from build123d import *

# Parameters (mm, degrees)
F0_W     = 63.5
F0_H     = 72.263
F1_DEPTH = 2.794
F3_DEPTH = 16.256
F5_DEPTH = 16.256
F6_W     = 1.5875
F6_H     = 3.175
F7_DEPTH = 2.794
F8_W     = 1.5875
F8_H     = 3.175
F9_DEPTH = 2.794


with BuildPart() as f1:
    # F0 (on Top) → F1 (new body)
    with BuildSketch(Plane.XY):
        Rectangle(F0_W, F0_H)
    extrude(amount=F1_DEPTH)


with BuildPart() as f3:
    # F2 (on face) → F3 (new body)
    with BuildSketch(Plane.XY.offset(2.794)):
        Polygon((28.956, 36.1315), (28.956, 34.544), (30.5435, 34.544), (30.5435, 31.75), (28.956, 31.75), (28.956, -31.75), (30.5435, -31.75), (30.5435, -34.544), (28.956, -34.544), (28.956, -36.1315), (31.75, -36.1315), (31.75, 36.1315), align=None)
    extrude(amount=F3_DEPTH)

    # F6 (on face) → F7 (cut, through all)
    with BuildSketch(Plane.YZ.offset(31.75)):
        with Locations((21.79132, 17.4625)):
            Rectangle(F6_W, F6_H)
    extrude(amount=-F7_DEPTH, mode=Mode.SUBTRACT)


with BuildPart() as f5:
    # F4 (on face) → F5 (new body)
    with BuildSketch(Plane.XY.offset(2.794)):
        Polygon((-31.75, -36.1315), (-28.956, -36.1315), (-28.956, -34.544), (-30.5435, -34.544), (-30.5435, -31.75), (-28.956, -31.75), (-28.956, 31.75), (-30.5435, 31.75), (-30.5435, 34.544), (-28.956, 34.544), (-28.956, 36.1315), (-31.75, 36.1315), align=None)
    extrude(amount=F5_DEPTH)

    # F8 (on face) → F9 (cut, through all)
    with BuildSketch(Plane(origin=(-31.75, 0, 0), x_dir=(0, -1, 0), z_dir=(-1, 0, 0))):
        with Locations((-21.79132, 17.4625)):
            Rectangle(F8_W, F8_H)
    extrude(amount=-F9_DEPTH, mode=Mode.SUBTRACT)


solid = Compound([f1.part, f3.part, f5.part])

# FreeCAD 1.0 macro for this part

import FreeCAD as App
import Part
import Sketcher
Q = App.Units.Quantity

doc = App.newDocument("Part")
body = doc.addObject("PartDesign::Body", "Body")

# Sketch on XY plane
sketch1 = body.newObject("Sketcher::SketchObject", "Sketch")
sketch1.AttachmentSupport = (doc.getObject("XY_Plane"), [""])
sketch1.MapMode = "FlatFace"
sketch1.addGeometry(Part.LineSegment(App.Vector(-31.75, 36.1315, 0), App.Vector(-31.75, -36.1315, 0)), False)
sketch1.addGeometry(Part.LineSegment(App.Vector(-31.75, -36.1315, 0), App.Vector(31.75, -36.1315, 0)), False)
sketch1.addGeometry(Part.LineSegment(App.Vector(31.75, -36.1315, 0), App.Vector(31.75, 36.1315, 0)), False)
sketch1.addGeometry(Part.LineSegment(App.Vector(31.75, 36.1315, 0), App.Vector(-31.75, 36.1315, 0)), False)
sketch1.addConstraint(Sketcher.Constraint("Coincident", 0, 2, 1, 1))
sketch1.addConstraint(Sketcher.Constraint("Coincident", 1, 2, 2, 1))
sketch1.addConstraint(Sketcher.Constraint("Coincident", 2, 2, 3, 1))
sketch1.addConstraint(Sketcher.Constraint("Coincident", 3, 2, 0, 1))
sketch1.addConstraint(Sketcher.Constraint("Vertical", 0))
sketch1.addConstraint(Sketcher.Constraint("Horizontal", 1))
sketch1.addConstraint(Sketcher.Constraint("Vertical", 2))
sketch1.addConstraint(Sketcher.Constraint("Horizontal", 3))
sketch1.addConstraint(Sketcher.Constraint("Symmetric", 0, 2, 2, 2, -1, 1))
sketch1.addConstraint(Sketcher.Constraint("DistanceX", 1, 1, 1, 2, Q("2.5 in")))
sketch1.addConstraint(Sketcher.Constraint("DistanceY", 0, 2, 0, 1, Q("2.845 in")))
pad1 = body.newObject("PartDesign::Pad", "Pad")
pad1.Profile = sketch1
pad1.Length = Q("0.11 in")
body2 = doc.addObject("PartDesign::Body", "Body001")

# Sketch on XY plane
sketch2 = body2.newObject("Sketcher::SketchObject", "Sketch001")
sketch2.AttachmentSupport = (doc.getObject("XY_Plane001"), [""])
sketch2.MapMode = "FlatFace"
sketch2.AttachmentOffset = App.Placement(App.Vector(0, 0, 0.11 * 25.4), App.Rotation())
sketch2.addGeometry(Part.LineSegment(App.Vector(28.956, 36.1315, 0), App.Vector(28.956, 34.544, 0)), False)
sketch2.addGeometry(Part.LineSegment(App.Vector(28.956, 34.544, 0), App.Vector(30.5435, 34.544, 0)), False)
sketch2.addGeometry(Part.LineSegment(App.Vector(30.5435, 34.544, 0), App.Vector(30.5435, 31.75, 0)), False)
sketch2.addGeometry(Part.LineSegment(App.Vector(30.5435, 31.75, 0), App.Vector(28.956, 31.75, 0)), False)
sketch2.addGeometry(Part.LineSegment(App.Vector(28.956, 31.75, 0), App.Vector(28.956, -31.75, 0)), False)
sketch2.addGeometry(Part.LineSegment(App.Vector(28.956, -31.75, 0), App.Vector(30.5435, -31.75, 0)), False)
sketch2.addGeometry(Part.LineSegment(App.Vector(30.5435, -31.75, 0), App.Vector(30.5435, -34.544, 0)), False)
sketch2.addGeometry(Part.LineSegment(App.Vector(30.5435, -34.544, 0), App.Vector(28.956, -34.544, 0)), False)
sketch2.addGeometry(Part.LineSegment(App.Vector(28.956, -34.544, 0), App.Vector(28.956, -36.1315, 0)), False)
sketch2.addGeometry(Part.LineSegment(App.Vector(28.956, -36.1315, 0), App.Vector(31.75, -36.1315, 0)), False)
sketch2.addGeometry(Part.LineSegment(App.Vector(31.75, -36.1315, 0), App.Vector(31.75, 36.1315, 0)), False)
sketch2.addGeometry(Part.LineSegment(App.Vector(31.75, 36.1315, 0), App.Vector(28.956, 36.1315, 0)), False)
sketch2.addConstraint(Sketcher.Constraint("Coincident", 0, 2, 1, 1))
sketch2.addConstraint(Sketcher.Constraint("Coincident", 1, 2, 2, 1))
sketch2.addConstraint(Sketcher.Constraint("Coincident", 2, 2, 3, 1))
sketch2.addConstraint(Sketcher.Constraint("Coincident", 3, 2, 4, 1))
sketch2.addConstraint(Sketcher.Constraint("Coincident", 4, 2, 5, 1))
sketch2.addConstraint(Sketcher.Constraint("Coincident", 5, 2, 6, 1))
sketch2.addConstraint(Sketcher.Constraint("Coincident", 6, 2, 7, 1))
sketch2.addConstraint(Sketcher.Constraint("Coincident", 7, 2, 8, 1))
sketch2.addConstraint(Sketcher.Constraint("Coincident", 8, 2, 9, 1))
sketch2.addConstraint(Sketcher.Constraint("Coincident", 9, 2, 10, 1))
sketch2.addConstraint(Sketcher.Constraint("Coincident", 10, 2, 11, 1))
sketch2.addConstraint(Sketcher.Constraint("Coincident", 11, 2, 0, 1))
sketch2.addConstraint(Sketcher.Constraint("Vertical", 0))
sketch2.addConstraint(Sketcher.Constraint("Horizontal", 1))
sketch2.addConstraint(Sketcher.Constraint("Vertical", 2))
sketch2.addConstraint(Sketcher.Constraint("Horizontal", 3))
sketch2.addConstraint(Sketcher.Constraint("Vertical", 4))
sketch2.addConstraint(Sketcher.Constraint("Horizontal", 5))
sketch2.addConstraint(Sketcher.Constraint("Vertical", 6))
sketch2.addConstraint(Sketcher.Constraint("Horizontal", 7))
sketch2.addConstraint(Sketcher.Constraint("Vertical", 8))
sketch2.addConstraint(Sketcher.Constraint("Horizontal", 9))
sketch2.addConstraint(Sketcher.Constraint("Vertical", 10))
sketch2.addConstraint(Sketcher.Constraint("Horizontal", 11))
sketch2.addConstraint(Sketcher.Constraint("Symmetric", 2, 2, 5, 2, -1))
sketch2.addConstraint(Sketcher.Constraint("Symmetric", 0, 2, 7, 2, -1))
sketch2.addConstraint(Sketcher.Constraint("Vertical", 0, 2, 3, 2))
sketch2.addConstraint(Sketcher.Constraint("Equal", 7, 0))
sketch2.addConstraint(Sketcher.Constraint("Equal", 11, 2))
sketch2.addConstraint(Sketcher.Constraint("Equal", 0, 8))
sketch2.addConstraint(Sketcher.Constraint("DistanceY", 4, 2, 4, 1, Q("2.5 in")))
sketch2.addConstraint(Sketcher.Constraint("DistanceX", 9, 1, 9, 2, Q("0.11 in")))
sketch2.addConstraint(Sketcher.Constraint("DistanceX", 1, 1, 1, 2, Q("0.0625 in")))
sketch2.addConstraint(Sketcher.Constraint("DistanceX", -1, 1, 0, 2, Q("1.14 in")))
pad2 = body2.newObject("PartDesign::Pad", "Pad001")
pad2.Profile = sketch2
pad2.Length = Q("0.64 in")

# Sketch on YZ plane
sketch3 = body2.newObject("Sketcher::SketchObject", "Sketch002")
sketch3.AttachmentSupport = (doc.getObject("YZ_Plane001"), [""])
sketch3.MapMode = "FlatFace"
sketch3.AttachmentOffset = App.Placement(App.Vector(0, 0, 1.25 * 25.4), App.Rotation())
sketch3.addGeometry(Part.LineSegment(App.Vector(20.99757, 19.05, 0), App.Vector(20.99757, 15.875, 0)), False)
sketch3.addGeometry(Part.LineSegment(App.Vector(20.99757, 15.875, 0), App.Vector(22.58507, 15.875, 0)), False)
sketch3.addGeometry(Part.LineSegment(App.Vector(22.58507, 15.875, 0), App.Vector(22.58507, 19.05, 0)), False)
sketch3.addGeometry(Part.LineSegment(App.Vector(22.58507, 19.05, 0), App.Vector(20.99757, 19.05, 0)), False)
sketch3.addConstraint(Sketcher.Constraint("Coincident", 0, 2, 1, 1))
sketch3.addConstraint(Sketcher.Constraint("Coincident", 1, 2, 2, 1))
sketch3.addConstraint(Sketcher.Constraint("Coincident", 2, 2, 3, 1))
sketch3.addConstraint(Sketcher.Constraint("Coincident", 3, 2, 0, 1))
sketch3.addConstraint(Sketcher.Constraint("Vertical", 0))
sketch3.addConstraint(Sketcher.Constraint("Horizontal", 1))
sketch3.addConstraint(Sketcher.Constraint("Vertical", 2))
sketch3.addConstraint(Sketcher.Constraint("Horizontal", 3))
sketch3.addConstraint(Sketcher.Constraint("DistanceX", 1, 1, 1, 2, Q("0.0625 in")))
sketch3.addConstraint(Sketcher.Constraint("DistanceY", 0, 2, 0, 1, Q("0.125 in")))
sketch3.addConstraint(Sketcher.Constraint("DistanceY", -1, 1, 2, 2, Q("0.75 in")))
sketch3.addConstraint(Sketcher.Constraint("DistanceX", -1, 1, 0, 2, 20.99757))
pocket1 = body2.newObject("PartDesign::Pocket", "Pocket")
pocket1.Profile = sketch3
pocket1.Type = "ThroughAll"
body3 = doc.addObject("PartDesign::Body", "Body002")

# Sketch on XY plane
sketch4 = body3.newObject("Sketcher::SketchObject", "Sketch003")
sketch4.AttachmentSupport = (doc.getObject("XY_Plane002"), [""])
sketch4.MapMode = "FlatFace"
sketch4.AttachmentOffset = App.Placement(App.Vector(0, 0, 0.11 * 25.4), App.Rotation())
sketch4.addGeometry(Part.LineSegment(App.Vector(-31.75, -36.1315, 0), App.Vector(-28.956, -36.1315, 0)), False)
sketch4.addGeometry(Part.LineSegment(App.Vector(-28.956, -36.1315, 0), App.Vector(-28.956, -34.544, 0)), False)
sketch4.addGeometry(Part.LineSegment(App.Vector(-28.956, -34.544, 0), App.Vector(-30.5435, -34.544, 0)), False)
sketch4.addGeometry(Part.LineSegment(App.Vector(-30.5435, -34.544, 0), App.Vector(-30.5435, -31.75, 0)), False)
sketch4.addGeometry(Part.LineSegment(App.Vector(-30.5435, -31.75, 0), App.Vector(-28.956, -31.75, 0)), False)
sketch4.addGeometry(Part.LineSegment(App.Vector(-28.956, -31.75, 0), App.Vector(-28.956, 31.75, 0)), False)
sketch4.addGeometry(Part.LineSegment(App.Vector(-28.956, 31.75, 0), App.Vector(-30.5435, 31.75, 0)), False)
sketch4.addGeometry(Part.LineSegment(App.Vector(-30.5435, 31.75, 0), App.Vector(-30.5435, 34.544, 0)), False)
sketch4.addGeometry(Part.LineSegment(App.Vector(-30.5435, 34.544, 0), App.Vector(-28.956, 34.544, 0)), False)
sketch4.addGeometry(Part.LineSegment(App.Vector(-28.956, 34.544, 0), App.Vector(-28.956, 36.1315, 0)), False)
sketch4.addGeometry(Part.LineSegment(App.Vector(-28.956, 36.1315, 0), App.Vector(-31.75, 36.1315, 0)), False)
sketch4.addGeometry(Part.LineSegment(App.Vector(-31.75, 36.1315, 0), App.Vector(-31.75, -36.1315, 0)), False)
sketch4.addConstraint(Sketcher.Constraint("Coincident", 0, 2, 1, 1))
sketch4.addConstraint(Sketcher.Constraint("Coincident", 1, 2, 2, 1))
sketch4.addConstraint(Sketcher.Constraint("Coincident", 2, 2, 3, 1))
sketch4.addConstraint(Sketcher.Constraint("Coincident", 3, 2, 4, 1))
sketch4.addConstraint(Sketcher.Constraint("Coincident", 4, 2, 5, 1))
sketch4.addConstraint(Sketcher.Constraint("Coincident", 5, 2, 6, 1))
sketch4.addConstraint(Sketcher.Constraint("Coincident", 6, 2, 7, 1))
sketch4.addConstraint(Sketcher.Constraint("Coincident", 7, 2, 8, 1))
sketch4.addConstraint(Sketcher.Constraint("Coincident", 8, 2, 9, 1))
sketch4.addConstraint(Sketcher.Constraint("Coincident", 9, 2, 10, 1))
sketch4.addConstraint(Sketcher.Constraint("Coincident", 10, 2, 11, 1))
sketch4.addConstraint(Sketcher.Constraint("Coincident", 11, 2, 0, 1))
sketch4.addConstraint(Sketcher.Constraint("Horizontal", 0))
sketch4.addConstraint(Sketcher.Constraint("Vertical", 1))
sketch4.addConstraint(Sketcher.Constraint("Horizontal", 2))
sketch4.addConstraint(Sketcher.Constraint("Vertical", 3))
sketch4.addConstraint(Sketcher.Constraint("Horizontal", 4))
sketch4.addConstraint(Sketcher.Constraint("Vertical", 5))
sketch4.addConstraint(Sketcher.Constraint("Horizontal", 6))
sketch4.addConstraint(Sketcher.Constraint("Vertical", 7))
sketch4.addConstraint(Sketcher.Constraint("Horizontal", 8))
sketch4.addConstraint(Sketcher.Constraint("Vertical", 9))
sketch4.addConstraint(Sketcher.Constraint("Horizontal", 10))
sketch4.addConstraint(Sketcher.Constraint("Vertical", 11))
sketch4.addConstraint(Sketcher.Constraint("Symmetric", 3, 2, 6, 2, -1))
sketch4.addConstraint(Sketcher.Constraint("Symmetric", 1, 2, 8, 2, -1))
sketch4.addConstraint(Sketcher.Constraint("Vertical", 1, 2, 4, 2))
sketch4.addConstraint(Sketcher.Constraint("Equal", 8, 1))
sketch4.addConstraint(Sketcher.Constraint("Equal", 10, 3))
sketch4.addConstraint(Sketcher.Constraint("Equal", 1, 9))
sketch4.addConstraint(Sketcher.Constraint("DistanceY", 5, 1, 5, 2, Q("2.5 in")))
sketch4.addConstraint(Sketcher.Constraint("DistanceX", 0, 1, 0, 2, Q("0.11 in")))
sketch4.addConstraint(Sketcher.Constraint("DistanceX", 2, 2, 2, 1, Q("0.0625 in")))
sketch4.addConstraint(Sketcher.Constraint("DistanceX", 0, 2, -1, 1, Q("1.14 in")))
pad3 = body3.newObject("PartDesign::Pad", "Pad002")
pad3.Profile = sketch4
pad3.Length = Q("0.64 in")

# Sketch on YZ plane
sketch5 = body3.newObject("Sketcher::SketchObject", "Sketch004")
sketch5.AttachmentSupport = (doc.getObject("YZ_Plane002"), [""])
sketch5.MapMode = "FlatFace"
sketch5.AttachmentOffset = App.Placement(App.Vector(0, 0, -1.25 * 25.4), App.Rotation())
sketch5.addGeometry(Part.LineSegment(App.Vector(22.58507, 19.05, 0), App.Vector(22.58507, 15.875, 0)), False)
sketch5.addGeometry(Part.LineSegment(App.Vector(22.58507, 15.875, 0), App.Vector(20.99757, 15.875, 0)), False)
sketch5.addGeometry(Part.LineSegment(App.Vector(20.99757, 15.875, 0), App.Vector(20.99757, 19.05, 0)), False)
sketch5.addGeometry(Part.LineSegment(App.Vector(20.99757, 19.05, 0), App.Vector(22.58507, 19.05, 0)), False)
sketch5.addConstraint(Sketcher.Constraint("Coincident", 0, 2, 1, 1))
sketch5.addConstraint(Sketcher.Constraint("Coincident", 1, 2, 2, 1))
sketch5.addConstraint(Sketcher.Constraint("Coincident", 2, 2, 3, 1))
sketch5.addConstraint(Sketcher.Constraint("Coincident", 3, 2, 0, 1))
sketch5.addConstraint(Sketcher.Constraint("Vertical", 0))
sketch5.addConstraint(Sketcher.Constraint("Horizontal", 1))
sketch5.addConstraint(Sketcher.Constraint("Vertical", 2))
sketch5.addConstraint(Sketcher.Constraint("Horizontal", 3))
sketch5.addConstraint(Sketcher.Constraint("DistanceX", 1, 2, 1, 1, Q("0.0625 in")))
sketch5.addConstraint(Sketcher.Constraint("DistanceY", 0, 2, 0, 1, Q("0.125 in")))
sketch5.addConstraint(Sketcher.Constraint("DistanceY", -1, 1, 2, 2, Q("0.75 in")))
sketch5.addConstraint(Sketcher.Constraint("DistanceX", -1, 1, 0, 2, 22.58507))
pocket2 = body3.newObject("PartDesign::Pocket", "Pocket001")
pocket2.Profile = sketch5
pocket2.Type = "ThroughAll"
pocket2.Reversed = True

doc.recompute()
